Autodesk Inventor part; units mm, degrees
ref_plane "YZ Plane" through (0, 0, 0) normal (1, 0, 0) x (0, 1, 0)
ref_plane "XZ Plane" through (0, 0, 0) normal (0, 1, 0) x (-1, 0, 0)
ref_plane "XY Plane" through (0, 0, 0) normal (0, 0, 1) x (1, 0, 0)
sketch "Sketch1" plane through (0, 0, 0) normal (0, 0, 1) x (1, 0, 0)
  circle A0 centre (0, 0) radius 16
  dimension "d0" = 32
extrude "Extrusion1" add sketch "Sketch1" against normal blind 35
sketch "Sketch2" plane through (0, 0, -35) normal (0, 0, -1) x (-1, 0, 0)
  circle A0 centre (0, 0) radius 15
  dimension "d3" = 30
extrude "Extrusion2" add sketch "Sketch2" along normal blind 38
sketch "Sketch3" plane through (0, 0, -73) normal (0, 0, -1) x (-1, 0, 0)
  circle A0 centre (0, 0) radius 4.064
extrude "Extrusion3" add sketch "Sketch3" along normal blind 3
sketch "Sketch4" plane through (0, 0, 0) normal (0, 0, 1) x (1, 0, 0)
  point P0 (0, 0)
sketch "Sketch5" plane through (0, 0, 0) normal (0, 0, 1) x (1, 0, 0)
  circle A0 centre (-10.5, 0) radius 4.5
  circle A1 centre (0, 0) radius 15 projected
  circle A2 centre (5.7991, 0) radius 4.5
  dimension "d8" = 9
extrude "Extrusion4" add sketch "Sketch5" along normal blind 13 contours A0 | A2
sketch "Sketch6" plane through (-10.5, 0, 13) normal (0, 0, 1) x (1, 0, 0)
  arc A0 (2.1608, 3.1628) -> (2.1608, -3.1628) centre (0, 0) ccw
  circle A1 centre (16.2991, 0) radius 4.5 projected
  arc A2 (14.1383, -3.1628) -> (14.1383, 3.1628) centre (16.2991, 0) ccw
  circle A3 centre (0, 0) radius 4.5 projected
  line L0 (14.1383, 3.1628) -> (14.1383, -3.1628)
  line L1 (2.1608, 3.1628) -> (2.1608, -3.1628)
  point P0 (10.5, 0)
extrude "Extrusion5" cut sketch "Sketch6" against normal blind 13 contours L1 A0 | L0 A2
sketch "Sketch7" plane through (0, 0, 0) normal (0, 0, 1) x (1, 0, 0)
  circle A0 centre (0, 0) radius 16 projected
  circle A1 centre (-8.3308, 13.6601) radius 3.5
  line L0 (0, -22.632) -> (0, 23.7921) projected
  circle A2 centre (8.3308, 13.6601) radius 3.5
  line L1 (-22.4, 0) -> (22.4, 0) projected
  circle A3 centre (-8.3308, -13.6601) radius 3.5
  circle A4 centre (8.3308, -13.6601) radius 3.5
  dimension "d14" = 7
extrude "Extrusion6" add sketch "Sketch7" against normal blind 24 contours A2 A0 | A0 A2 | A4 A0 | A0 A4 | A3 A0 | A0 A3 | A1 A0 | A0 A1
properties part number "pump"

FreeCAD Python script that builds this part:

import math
import FreeCAD as App
import Part
import Sketcher

V = App.Vector
Q = App.Units.Quantity

doc = App.newDocument("Part")
body = doc.addObject("PartDesign::Body", "Body")

sketch1 = body.newObject("Sketcher::SketchObject", "Sketch")
sketch1.AttachmentSupport = (doc.getObject("XY_Plane"), [""])
sketch1.MapMode = "FlatFace"
sketch1.addGeometry(Part.Circle(V(0, 0, 0), V(0, 0, 1), 16), False)
sketch1.addConstraint(Sketcher.Constraint("Coincident", 0, 3, -1, 1))
sketch1.addConstraint(Sketcher.Constraint("Diameter", 0, Q("32 mm")))
pad1 = body.newObject("PartDesign::Pad", "Pad")
pad1.Profile = sketch1
pad1.Length = 35
pad1.Reversed = True

sketch2 = body.newObject("Sketcher::SketchObject", "Sketch001")
sketch2.AttachmentSupport = (doc.getObject("XY_Plane"), [""])
sketch2.MapMode = "FlatFace"
sketch2.AttachmentOffset = App.Placement(V(0, 0, -35), App.Rotation())
sketch2.addGeometry(Part.Circle(V(0, 0, 0), V(0, 0, 1), 15), False)
sketch2.addConstraint(Sketcher.Constraint("Coincident", 0, 3, -1, 1))
sketch2.addConstraint(Sketcher.Constraint("Diameter", 0, Q("30 mm")))
pad2 = body.newObject("PartDesign::Pad", "Pad001")
pad2.Profile = sketch2
pad2.Length = 38
pad2.Reversed = True

sketch3 = body.newObject("Sketcher::SketchObject", "Sketch002")
sketch3.AttachmentSupport = (doc.getObject("XY_Plane"), [""])
sketch3.MapMode = "FlatFace"
sketch3.AttachmentOffset = App.Placement(V(0, 0, -73), App.Rotation())
sketch3.addGeometry(Part.Circle(V(0, 0, 0), V(0, 0, 1), 4.1), False)
sketch3.addConstraint(Sketcher.Constraint("Coincident", 0, 3, -1, 1))
sketch3.addConstraint(Sketcher.Constraint("Diameter", 0, Q("8.128 mm")))
pad3 = body.newObject("PartDesign::Pad", "Pad002")
pad3.Profile = sketch3
pad3.Length = 3
pad3.Reversed = True

sketch4 = body.newObject("Sketcher::SketchObject", "Sketch003")
sketch4.AttachmentSupport = (doc.getObject("XY_Plane"), [""])
sketch4.MapMode = "FlatFace"
sketch4.addGeometry(Part.Circle(V(-10.5, 0, 0), V(0, 0, 1), 4.5), False)
sketch4.addGeometry(Part.Circle(V(5.8, 0, 0), V(0, 0, 1), 4.5), False)
sketch4.addConstraint(Sketcher.Constraint("Equal", 0, 1))
sketch4.addConstraint(Sketcher.Constraint("PointOnObject", 0, 3, -1))
sketch4.addConstraint(Sketcher.Constraint("PointOnObject", 1, 3, -1))
sketch4.addConstraint(Sketcher.Constraint("Diameter", 0, Q("9 mm")))
sketch4.addConstraint(Sketcher.Constraint("DistanceX", 0, 3, -1, 1, Q("10.5 mm")))
sketch4.addConstraint(Sketcher.Constraint("DistanceX", -1, 1, 1, 3, Q("5.799 mm")))
pad4 = body.newObject("PartDesign::Pad", "Pad003")
pad4.Profile = sketch4
pad4.Length = 13

sketch5 = body.newObject("Sketcher::SketchObject", "Sketch004")
sketch5.AttachmentSupport = (doc.getObject("XY_Plane"), [""])
sketch5.MapMode = "FlatFace"
sketch5.AttachmentOffset = App.Placement(V(0, 0, 13), App.Rotation())
sketch5.addGeometry(Part.LineSegment(V(-8.3, -3.2, 0), V(-8.3, 3.2, 0)), False)
sketch5.addGeometry(Part.ArcOfCircle(Part.Circle(V(-10.5, 0, 0), V(0, 0, 1), 3.8), math.radians(56), math.radians(304)), False)
sketch5.addGeometry(Part.LineSegment(V(3.6, 3.2, 0), V(3.6, -3.2, 0)), False)
sketch5.addGeometry(Part.ArcOfCircle(Part.Circle(V(5.8, 0, 0), V(0, 0, 1), 3.8), math.radians(-124), math.radians(124)), False)
sketch5.addConstraint(Sketcher.Constraint("Coincident", 0, 1, 1, 2))
sketch5.addConstraint(Sketcher.Constraint("Coincident", 1, 1, 0, 2))
sketch5.addConstraint(Sketcher.Constraint("Coincident", 2, 1, 3, 2))
sketch5.addConstraint(Sketcher.Constraint("Coincident", 3, 1, 2, 2))
sketch5.addConstraint(Sketcher.Constraint("Vertical", 0))
sketch5.addConstraint(Sketcher.Constraint("Vertical", 2))
sketch5.addConstraint(Sketcher.Constraint("Equal", 1, 3))
sketch5.addConstraint(Sketcher.Constraint("PointOnObject", 1, 3, -1))
sketch5.addConstraint(Sketcher.Constraint("PointOnObject", 3, 3, -1))
sketch5.addConstraint(Sketcher.Constraint("Horizontal", 1, 1, 2, 1))
sketch5.addConstraint(Sketcher.Constraint("DistanceX", 1, 3, -1, 1, Q("10.5 mm")))
sketch5.addConstraint(Sketcher.Constraint("Radius", 1, Q("3.8305 mm")))
sketch5.addConstraint(Sketcher.Constraint("DistanceY", 0, 1, 0, 2, Q("6.3256 mm")))
sketch5.addConstraint(Sketcher.Constraint("DistanceX", -1, 1, 3, 3, Q("5.799 mm")))
pocket1 = body.newObject("PartDesign::Pocket", "Pocket")
pocket1.Profile = sketch5
pocket1.Length = 13

sketch6 = body.newObject("Sketcher::SketchObject", "Sketch005")
sketch6.AttachmentSupport = (doc.getObject("XY_Plane"), [""])
sketch6.MapMode = "FlatFace"
sketch6.addGeometry(Part.Circle(V(8.3, 13.7, 0), V(0, 0, 1), 3.5), False)
sketch6.addGeometry(Part.Circle(V(8.3, -13.7, 0), V(0, 0, 1), 3.5), False)
sketch6.addGeometry(Part.Circle(V(-8.3, -13.7, 0), V(0, 0, 1), 3.5), False)
sketch6.addGeometry(Part.Circle(V(-8.3, 13.7, 0), V(0, 0, 1), 3.5), False)
sketch6.addConstraint(Sketcher.Constraint("Equal", 0, 1))
sketch6.addConstraint(Sketcher.Constraint("Equal", 1, 2))
sketch6.addConstraint(Sketcher.Constraint("Equal", 2, 3))
sketch6.addConstraint(Sketcher.Constraint("Symmetric", 0, 3, 2, 3, -1, 1))
sketch6.addConstraint(Sketcher.Constraint("Symmetric", 1, 3, 3, 3, -1, 1))
sketch6.addConstraint(Sketcher.Constraint("Symmetric", 1, 3, 2, 3, -2))
sketch6.addConstraint(Sketcher.Constraint("Diameter", 0, Q("7 mm")))
sketch6.addConstraint(Sketcher.Constraint("DistanceY", -1, 1, 0, 3, Q("13.66 mm")))
sketch6.addConstraint(Sketcher.Constraint("DistanceX", -1, 1, 0, 3, Q("8.3308 mm")))
pad5 = body.newObject("PartDesign::Pad", "Pad004")
pad5.Profile = sketch6
pad5.Length = 24
pad5.Reversed = True

doc.recompute()
